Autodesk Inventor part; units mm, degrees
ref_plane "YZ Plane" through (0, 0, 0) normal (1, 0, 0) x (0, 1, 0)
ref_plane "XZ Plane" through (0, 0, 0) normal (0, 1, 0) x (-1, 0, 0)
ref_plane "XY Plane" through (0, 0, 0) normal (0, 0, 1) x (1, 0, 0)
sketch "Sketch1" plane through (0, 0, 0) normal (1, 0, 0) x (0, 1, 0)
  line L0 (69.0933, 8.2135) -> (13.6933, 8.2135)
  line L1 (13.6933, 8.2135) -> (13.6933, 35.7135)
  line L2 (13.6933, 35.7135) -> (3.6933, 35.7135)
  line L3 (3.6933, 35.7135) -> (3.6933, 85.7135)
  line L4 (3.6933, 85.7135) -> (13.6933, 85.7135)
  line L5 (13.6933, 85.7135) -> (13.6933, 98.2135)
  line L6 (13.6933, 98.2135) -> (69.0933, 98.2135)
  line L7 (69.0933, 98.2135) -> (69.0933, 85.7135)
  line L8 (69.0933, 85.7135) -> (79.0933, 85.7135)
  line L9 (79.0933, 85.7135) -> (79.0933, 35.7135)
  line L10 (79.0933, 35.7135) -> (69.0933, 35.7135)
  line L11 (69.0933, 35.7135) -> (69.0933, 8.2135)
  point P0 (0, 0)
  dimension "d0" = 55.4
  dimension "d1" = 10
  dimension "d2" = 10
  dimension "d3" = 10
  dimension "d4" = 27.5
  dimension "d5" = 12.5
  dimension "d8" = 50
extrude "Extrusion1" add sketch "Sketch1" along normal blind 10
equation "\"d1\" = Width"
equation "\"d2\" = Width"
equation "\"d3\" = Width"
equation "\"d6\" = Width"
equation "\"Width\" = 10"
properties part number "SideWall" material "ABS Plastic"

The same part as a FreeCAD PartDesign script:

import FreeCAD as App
import Part
import Sketcher
from FreeCAD import Vector

doc = App.newDocument("Part")
body = doc.addObject("PartDesign::Body", "Body")

# Sketch on YZ plane
sketch1 = body.newObject("Sketcher::SketchObject", "Sketch")
sketch1.AttachmentSupport = (doc.getObject("YZ_Plane"), [""])
sketch1.MapMode = "FlatFace"
sketch1.addGeometry([
    Part.LineSegment(Vector(14, 8, 0), Vector(69, 8, 0)),  # 0
    Part.LineSegment(Vector(69, 8, 0), Vector(69, 36, 0)),  # 1
    Part.LineSegment(Vector(69, 36, 0), Vector(79, 36, 0)),  # 2
    Part.LineSegment(Vector(79, 36, 0), Vector(79, 86, 0)),  # 3
    Part.LineSegment(Vector(79, 86, 0), Vector(69, 86, 0)),  # 4
    Part.LineSegment(Vector(69, 86, 0), Vector(69, 98, 0)),  # 5
    Part.LineSegment(Vector(69, 98, 0), Vector(14, 98, 0)),  # 6
    Part.LineSegment(Vector(14, 98, 0), Vector(14, 86, 0)),  # 7
    Part.LineSegment(Vector(14, 86, 0), Vector(4, 86, 0)),  # 8
    Part.LineSegment(Vector(4, 86, 0), Vector(4, 36, 0)),  # 9
    Part.LineSegment(Vector(4, 36, 0), Vector(14, 36, 0)),  # 10
    Part.LineSegment(Vector(14, 36, 0), Vector(14, 8, 0)),  # 11
], False)
sketch1.addConstraint([
    Sketcher.Constraint("Coincident", 0, 2, 1, 1),
    Sketcher.Constraint("Coincident", 1, 2, 2, 1),
    Sketcher.Constraint("Coincident", 2, 2, 3, 1),
    Sketcher.Constraint("Coincident", 3, 2, 4, 1),
    Sketcher.Constraint("Coincident", 4, 2, 5, 1),
    Sketcher.Constraint("Coincident", 5, 2, 6, 1),
    Sketcher.Constraint("Coincident", 6, 2, 7, 1),
    Sketcher.Constraint("Coincident", 7, 2, 8, 1),
    Sketcher.Constraint("Coincident", 8, 2, 9, 1),
    Sketcher.Constraint("Coincident", 9, 2, 10, 1),
    Sketcher.Constraint("Coincident", 10, 2, 11, 1),
    Sketcher.Constraint("Coincident", 11, 2, 0, 1),
    Sketcher.Constraint("Horizontal", 0),
    Sketcher.Constraint("Vertical", 1),
    Sketcher.Constraint("Horizontal", 2),
    Sketcher.Constraint("Vertical", 3),
    Sketcher.Constraint("Horizontal", 4),
    Sketcher.Constraint("Vertical", 5),
    Sketcher.Constraint("Horizontal", 6),
    Sketcher.Constraint("Vertical", 7),
    Sketcher.Constraint("Horizontal", 8),
    Sketcher.Constraint("Vertical", 9),
    Sketcher.Constraint("Horizontal", 10),
    Sketcher.Constraint("Vertical", 11),
    Sketcher.Constraint("Horizontal", 4, 2, 7, 2),
    Sketcher.Constraint("Horizontal", 2, 2, 9, 2),
    Sketcher.Constraint("Vertical", 1, 2, 4, 2),
    Sketcher.Constraint("Vertical", 7, 2, 10, 2),
    Sketcher.Constraint("Equal", 4, 8),
    Sketcher.Constraint("DistanceX", 2, 1, 2, 2, 10.0),
    Sketcher.Constraint("DistanceY", 3, 1, 3, 2, 50.0),
    Sketcher.Constraint("DistanceX", 0, 1, 0, 2, 55.4),
    Sketcher.Constraint("DistanceY", 1, 1, 1, 2, 27.5),
    Sketcher.Constraint("DistanceY", 5, 1, 5, 2, 12.5),
    Sketcher.Constraint("DistanceX", -1, 1, 0, 2, 69.0933),
    Sketcher.Constraint("DistanceY", -1, 1, 0, 2, 8.2135),
])
pad1 = body.newObject("PartDesign::Pad", "Pad")
pad1.Profile = sketch1
pad1.Length = 10

doc.recompute()
